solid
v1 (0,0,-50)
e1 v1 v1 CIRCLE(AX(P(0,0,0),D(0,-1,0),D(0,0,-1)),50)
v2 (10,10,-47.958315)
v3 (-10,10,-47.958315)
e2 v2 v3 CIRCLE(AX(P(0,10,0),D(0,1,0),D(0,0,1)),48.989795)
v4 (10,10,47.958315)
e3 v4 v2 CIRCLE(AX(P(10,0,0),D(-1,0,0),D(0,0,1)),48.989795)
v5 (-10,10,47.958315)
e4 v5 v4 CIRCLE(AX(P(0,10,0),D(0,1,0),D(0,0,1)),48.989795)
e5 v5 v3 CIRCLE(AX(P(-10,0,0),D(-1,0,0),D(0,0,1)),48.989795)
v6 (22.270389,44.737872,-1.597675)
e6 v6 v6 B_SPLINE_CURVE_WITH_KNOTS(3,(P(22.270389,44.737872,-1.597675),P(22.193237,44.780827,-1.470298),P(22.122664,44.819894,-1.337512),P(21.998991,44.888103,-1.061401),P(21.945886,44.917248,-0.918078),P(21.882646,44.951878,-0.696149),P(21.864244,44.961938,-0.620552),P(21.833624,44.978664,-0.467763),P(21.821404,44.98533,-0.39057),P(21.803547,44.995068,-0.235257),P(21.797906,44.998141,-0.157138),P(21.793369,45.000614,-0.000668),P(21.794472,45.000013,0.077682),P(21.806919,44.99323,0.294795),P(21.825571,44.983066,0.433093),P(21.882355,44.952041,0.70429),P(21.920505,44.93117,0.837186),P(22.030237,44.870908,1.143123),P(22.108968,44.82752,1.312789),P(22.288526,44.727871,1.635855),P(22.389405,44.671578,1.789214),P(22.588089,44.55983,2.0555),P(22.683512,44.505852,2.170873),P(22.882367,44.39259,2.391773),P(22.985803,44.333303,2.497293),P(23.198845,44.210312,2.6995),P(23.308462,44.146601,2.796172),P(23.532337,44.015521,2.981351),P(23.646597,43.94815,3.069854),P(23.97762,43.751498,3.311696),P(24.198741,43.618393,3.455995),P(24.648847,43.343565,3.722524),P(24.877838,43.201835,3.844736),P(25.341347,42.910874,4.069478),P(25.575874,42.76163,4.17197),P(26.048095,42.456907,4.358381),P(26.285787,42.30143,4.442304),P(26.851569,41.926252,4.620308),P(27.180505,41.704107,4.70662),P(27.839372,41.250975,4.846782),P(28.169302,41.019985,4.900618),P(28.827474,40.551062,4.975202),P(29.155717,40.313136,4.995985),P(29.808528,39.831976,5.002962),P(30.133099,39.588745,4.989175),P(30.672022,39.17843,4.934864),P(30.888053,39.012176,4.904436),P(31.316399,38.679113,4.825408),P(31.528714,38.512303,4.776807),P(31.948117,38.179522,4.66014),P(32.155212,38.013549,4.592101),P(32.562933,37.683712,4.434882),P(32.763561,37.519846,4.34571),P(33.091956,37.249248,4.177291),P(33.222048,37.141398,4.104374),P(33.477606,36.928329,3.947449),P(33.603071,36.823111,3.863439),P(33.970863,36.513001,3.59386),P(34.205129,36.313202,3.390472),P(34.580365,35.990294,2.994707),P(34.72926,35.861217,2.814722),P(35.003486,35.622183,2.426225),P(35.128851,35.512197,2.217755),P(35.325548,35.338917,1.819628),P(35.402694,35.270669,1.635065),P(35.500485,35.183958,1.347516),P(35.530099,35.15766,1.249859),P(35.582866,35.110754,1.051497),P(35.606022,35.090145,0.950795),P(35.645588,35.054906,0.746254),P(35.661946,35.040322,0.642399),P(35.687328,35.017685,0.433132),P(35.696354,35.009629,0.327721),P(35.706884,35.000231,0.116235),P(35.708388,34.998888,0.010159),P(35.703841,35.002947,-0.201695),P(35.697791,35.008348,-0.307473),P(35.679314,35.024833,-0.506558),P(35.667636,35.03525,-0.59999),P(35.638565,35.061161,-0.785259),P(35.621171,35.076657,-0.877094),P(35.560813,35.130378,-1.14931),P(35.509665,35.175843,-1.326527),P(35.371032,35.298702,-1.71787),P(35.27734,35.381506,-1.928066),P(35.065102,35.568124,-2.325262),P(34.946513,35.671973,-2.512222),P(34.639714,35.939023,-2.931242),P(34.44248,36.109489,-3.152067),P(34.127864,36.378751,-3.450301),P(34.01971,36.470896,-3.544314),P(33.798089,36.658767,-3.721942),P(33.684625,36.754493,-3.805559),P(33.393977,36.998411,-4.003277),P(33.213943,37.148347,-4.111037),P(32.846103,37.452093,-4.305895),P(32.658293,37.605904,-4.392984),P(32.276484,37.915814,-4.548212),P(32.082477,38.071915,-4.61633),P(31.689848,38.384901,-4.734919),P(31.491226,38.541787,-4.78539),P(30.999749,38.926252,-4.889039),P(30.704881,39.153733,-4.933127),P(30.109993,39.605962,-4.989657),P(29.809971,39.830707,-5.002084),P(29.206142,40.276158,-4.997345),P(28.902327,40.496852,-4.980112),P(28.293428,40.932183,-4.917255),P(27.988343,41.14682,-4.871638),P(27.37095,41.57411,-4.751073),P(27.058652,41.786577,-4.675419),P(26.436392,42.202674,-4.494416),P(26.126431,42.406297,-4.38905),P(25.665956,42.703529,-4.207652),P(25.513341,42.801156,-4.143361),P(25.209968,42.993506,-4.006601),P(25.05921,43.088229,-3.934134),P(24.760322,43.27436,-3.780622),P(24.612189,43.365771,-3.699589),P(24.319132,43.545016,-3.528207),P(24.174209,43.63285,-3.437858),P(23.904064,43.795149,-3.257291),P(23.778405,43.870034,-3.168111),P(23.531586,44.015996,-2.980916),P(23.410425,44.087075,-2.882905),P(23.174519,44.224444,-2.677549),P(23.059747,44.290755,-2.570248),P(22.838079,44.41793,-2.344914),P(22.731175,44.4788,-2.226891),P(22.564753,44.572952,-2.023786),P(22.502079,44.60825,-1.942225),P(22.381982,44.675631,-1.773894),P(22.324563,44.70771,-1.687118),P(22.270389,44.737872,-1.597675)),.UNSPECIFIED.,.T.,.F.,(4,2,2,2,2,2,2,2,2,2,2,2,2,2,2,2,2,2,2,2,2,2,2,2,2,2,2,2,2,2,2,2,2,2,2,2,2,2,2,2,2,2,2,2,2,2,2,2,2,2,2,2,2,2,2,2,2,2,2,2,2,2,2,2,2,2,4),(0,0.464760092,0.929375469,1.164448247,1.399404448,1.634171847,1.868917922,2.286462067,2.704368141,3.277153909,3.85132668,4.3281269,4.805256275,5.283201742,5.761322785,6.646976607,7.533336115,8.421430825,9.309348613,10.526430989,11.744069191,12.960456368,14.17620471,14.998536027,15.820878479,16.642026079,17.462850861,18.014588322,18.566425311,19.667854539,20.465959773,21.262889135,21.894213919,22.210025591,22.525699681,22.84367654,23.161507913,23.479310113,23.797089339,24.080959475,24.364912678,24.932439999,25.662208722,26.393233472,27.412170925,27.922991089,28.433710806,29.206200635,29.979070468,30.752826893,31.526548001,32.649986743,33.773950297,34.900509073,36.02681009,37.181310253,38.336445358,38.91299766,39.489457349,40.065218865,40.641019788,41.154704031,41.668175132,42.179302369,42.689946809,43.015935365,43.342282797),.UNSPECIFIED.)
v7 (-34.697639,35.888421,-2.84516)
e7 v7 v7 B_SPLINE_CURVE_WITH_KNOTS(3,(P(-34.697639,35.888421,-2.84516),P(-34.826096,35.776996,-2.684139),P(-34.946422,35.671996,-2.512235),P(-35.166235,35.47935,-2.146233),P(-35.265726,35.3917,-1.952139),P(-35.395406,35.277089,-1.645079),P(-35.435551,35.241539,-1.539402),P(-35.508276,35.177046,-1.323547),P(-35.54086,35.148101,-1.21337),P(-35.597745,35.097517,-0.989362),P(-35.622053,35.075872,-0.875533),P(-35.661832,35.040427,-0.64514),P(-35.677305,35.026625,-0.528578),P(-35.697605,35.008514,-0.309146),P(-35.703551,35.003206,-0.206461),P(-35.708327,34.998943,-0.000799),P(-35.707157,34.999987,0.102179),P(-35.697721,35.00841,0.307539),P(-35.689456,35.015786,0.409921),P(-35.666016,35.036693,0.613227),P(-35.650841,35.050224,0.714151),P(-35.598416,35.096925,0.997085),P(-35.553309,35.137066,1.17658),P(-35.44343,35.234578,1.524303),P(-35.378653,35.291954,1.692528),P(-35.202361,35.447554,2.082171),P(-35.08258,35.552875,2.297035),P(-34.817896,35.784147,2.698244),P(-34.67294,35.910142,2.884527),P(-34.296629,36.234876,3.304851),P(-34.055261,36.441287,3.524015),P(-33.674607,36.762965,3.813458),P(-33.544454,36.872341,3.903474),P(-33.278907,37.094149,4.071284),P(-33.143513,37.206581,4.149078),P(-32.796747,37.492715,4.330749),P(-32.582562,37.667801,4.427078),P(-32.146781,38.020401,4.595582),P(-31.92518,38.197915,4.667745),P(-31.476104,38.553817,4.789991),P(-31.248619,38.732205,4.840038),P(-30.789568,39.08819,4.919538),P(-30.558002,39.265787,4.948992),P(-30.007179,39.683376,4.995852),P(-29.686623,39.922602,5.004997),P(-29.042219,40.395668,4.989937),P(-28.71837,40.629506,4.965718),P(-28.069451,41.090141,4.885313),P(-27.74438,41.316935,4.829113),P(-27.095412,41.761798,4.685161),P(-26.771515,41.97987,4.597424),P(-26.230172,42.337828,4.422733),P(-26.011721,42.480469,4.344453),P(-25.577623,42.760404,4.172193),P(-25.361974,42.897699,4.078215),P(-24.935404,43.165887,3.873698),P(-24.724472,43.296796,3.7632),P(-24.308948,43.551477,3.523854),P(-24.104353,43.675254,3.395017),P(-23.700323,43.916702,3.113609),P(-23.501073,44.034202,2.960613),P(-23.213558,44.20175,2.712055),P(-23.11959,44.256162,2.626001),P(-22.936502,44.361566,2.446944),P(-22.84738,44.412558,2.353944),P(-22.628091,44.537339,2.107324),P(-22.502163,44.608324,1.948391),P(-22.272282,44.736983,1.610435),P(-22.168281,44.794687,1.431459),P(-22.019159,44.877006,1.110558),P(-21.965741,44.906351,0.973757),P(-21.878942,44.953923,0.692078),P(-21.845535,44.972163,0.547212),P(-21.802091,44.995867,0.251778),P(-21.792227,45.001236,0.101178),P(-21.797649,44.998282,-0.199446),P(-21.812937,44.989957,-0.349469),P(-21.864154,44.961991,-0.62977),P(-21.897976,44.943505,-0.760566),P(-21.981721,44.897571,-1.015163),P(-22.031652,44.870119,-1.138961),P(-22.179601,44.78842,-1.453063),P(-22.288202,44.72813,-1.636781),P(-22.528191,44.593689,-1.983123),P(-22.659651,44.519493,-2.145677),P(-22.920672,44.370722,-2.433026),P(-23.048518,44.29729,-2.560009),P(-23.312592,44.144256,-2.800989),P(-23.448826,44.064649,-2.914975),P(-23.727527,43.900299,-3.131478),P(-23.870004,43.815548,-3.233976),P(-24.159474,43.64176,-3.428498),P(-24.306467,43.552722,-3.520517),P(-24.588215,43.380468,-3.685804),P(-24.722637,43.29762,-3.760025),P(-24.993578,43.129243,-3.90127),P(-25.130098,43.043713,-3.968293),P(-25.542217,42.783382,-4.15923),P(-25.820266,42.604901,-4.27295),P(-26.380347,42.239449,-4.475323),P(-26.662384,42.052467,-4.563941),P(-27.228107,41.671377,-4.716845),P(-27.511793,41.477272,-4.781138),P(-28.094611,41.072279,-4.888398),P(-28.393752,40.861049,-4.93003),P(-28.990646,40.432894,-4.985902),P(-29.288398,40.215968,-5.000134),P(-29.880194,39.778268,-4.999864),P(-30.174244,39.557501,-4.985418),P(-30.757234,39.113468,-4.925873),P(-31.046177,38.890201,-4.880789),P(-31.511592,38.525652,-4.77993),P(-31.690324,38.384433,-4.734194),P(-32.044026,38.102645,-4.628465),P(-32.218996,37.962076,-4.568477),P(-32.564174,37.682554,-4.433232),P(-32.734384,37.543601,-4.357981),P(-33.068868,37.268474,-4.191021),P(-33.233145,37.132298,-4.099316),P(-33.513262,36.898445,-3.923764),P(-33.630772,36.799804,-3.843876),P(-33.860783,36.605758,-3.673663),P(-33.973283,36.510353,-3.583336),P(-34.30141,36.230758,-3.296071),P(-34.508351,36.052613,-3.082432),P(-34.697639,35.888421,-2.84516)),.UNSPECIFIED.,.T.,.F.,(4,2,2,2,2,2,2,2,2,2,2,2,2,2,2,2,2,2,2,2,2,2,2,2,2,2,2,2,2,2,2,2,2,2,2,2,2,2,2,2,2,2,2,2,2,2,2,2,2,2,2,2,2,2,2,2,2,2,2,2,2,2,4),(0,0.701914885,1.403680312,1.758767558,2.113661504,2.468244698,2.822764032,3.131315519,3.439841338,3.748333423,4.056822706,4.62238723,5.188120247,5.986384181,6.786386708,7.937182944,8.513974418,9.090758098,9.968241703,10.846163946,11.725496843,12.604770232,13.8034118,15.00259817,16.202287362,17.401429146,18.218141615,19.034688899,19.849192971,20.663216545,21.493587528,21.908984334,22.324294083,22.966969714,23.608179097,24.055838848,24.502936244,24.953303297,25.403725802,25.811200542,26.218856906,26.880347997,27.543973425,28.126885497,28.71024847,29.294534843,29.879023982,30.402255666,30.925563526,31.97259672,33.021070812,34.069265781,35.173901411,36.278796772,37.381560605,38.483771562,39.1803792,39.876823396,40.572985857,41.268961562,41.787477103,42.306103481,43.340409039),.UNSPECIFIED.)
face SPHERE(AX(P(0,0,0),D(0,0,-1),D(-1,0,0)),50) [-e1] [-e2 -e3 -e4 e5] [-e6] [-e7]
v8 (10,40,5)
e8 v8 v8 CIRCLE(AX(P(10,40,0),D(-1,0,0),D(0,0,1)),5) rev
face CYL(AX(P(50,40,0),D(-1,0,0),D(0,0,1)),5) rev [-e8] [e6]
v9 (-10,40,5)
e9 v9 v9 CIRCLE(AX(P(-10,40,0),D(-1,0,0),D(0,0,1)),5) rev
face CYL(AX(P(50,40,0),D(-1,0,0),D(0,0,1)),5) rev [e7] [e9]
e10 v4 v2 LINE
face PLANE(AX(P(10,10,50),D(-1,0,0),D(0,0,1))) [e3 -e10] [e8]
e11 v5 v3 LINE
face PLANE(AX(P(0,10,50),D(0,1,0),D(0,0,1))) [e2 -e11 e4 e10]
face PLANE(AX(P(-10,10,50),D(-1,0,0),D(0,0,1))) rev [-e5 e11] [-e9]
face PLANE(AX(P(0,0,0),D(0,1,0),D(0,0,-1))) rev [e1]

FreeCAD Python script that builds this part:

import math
import FreeCAD as App
import Part
import Sketcher
from FreeCAD import Vector


def add_polygon(sketch, points):
    """Adds a closed chain of lines whose ends are joined by coincident constraints."""
    first, n = sketch.GeometryCount, len(points)
    for a, b in zip(points, points[1:] + points[:1]):
        sketch.addGeometry(Part.LineSegment(App.Vector(*a, 0), App.Vector(*b, 0)), False)
    for i in range(n):
        sketch.addConstraint(Sketcher.Constraint("Coincident", first + i, 2, first + (i + 1) % n, 1))

doc = App.newDocument("Part")
body = doc.addObject("PartDesign::Body", "Body")

sketch1 = body.newObject("Sketcher::SketchObject", "Sketch")
sketch1.AttachmentSupport = (doc.getObject("XZ_Plane"), [""])
sketch1.MapMode = "FlatFace"
sketch1.addGeometry(Part.LineSegment(Vector(0, -50, 0), Vector(0, 50, 0)), False)
sketch1.addGeometry(Part.ArcOfCircle(Part.Circle(Vector(0, 0, 0), Vector(0, 0, 1), 50), math.radians(-90), math.radians(90)), False)
sketch1.addConstraint(Sketcher.Constraint("Coincident", 0, 1, 1, 1))
sketch1.addConstraint(Sketcher.Constraint("Coincident", 1, 2, 0, 2))
sketch1.addConstraint(Sketcher.Constraint("Vertical", 0))
sketch1.addConstraint(Sketcher.Constraint("Coincident", 1, 3, -1, 1))
sketch1.addConstraint(Sketcher.Constraint("PointOnObject", 0, 1, -2))
sketch1.addConstraint(Sketcher.Constraint("Radius", 1, 50.0))
revolution = body.newObject("PartDesign::Revolution", "Revolution")
revolution.Profile = sketch1
revolution.ReferenceAxis = (sketch1, ["V_Axis"])
revolution.Angle = 180

sketch2 = body.newObject("Sketcher::SketchObject", "Sketch001")
sketch2.AttachmentSupport = (doc.getObject("XY_Plane"), [""])
sketch2.MapMode = "FlatFace"
add_polygon(sketch2, [(0, 50), (0, 10), (10, 10), (10, 50)])
sketch2.addConstraint(Sketcher.Constraint("Vertical", 0))
sketch2.addConstraint(Sketcher.Constraint("Horizontal", 1))
sketch2.addConstraint(Sketcher.Constraint("Vertical", 2))
sketch2.addConstraint(Sketcher.Constraint("Horizontal", 3))
sketch2.addConstraint(Sketcher.Constraint("PointOnObject", 0, 2, -2))
sketch2.addConstraint(Sketcher.Constraint("DistanceX", 1, 1, 1, 2, 10.0))
sketch2.addConstraint(Sketcher.Constraint("DistanceY", 0, 2, 0, 1, 40.0))
sketch2.addConstraint(Sketcher.Constraint("DistanceY", -1, 1, 0, 2, 10.0))
pocket1 = body.newObject("PartDesign::Pocket", "Pocket")
pocket1.Profile = sketch2
pocket1.Length = 100
pocket1.Midplane = True
doc.recompute()

mirrored = body.newObject("PartDesign::Mirrored", "Mirrored")
mirrored.Originals = [pocket1]
mirrored.MirrorPlane = (doc.getObject("YZ_Plane"), [""])
body.Tip = mirrored

sketch3 = body.newObject("Sketcher::SketchObject", "Sketch002")
sketch3.AttachmentSupport = (doc.getObject("YZ_Plane"), [""])
sketch3.MapMode = "FlatFace"
sketch3.addGeometry(Part.Circle(Vector(40, 0, 0), Vector(0, 0, 1), 5), False)
sketch3.addConstraint(Sketcher.Constraint("PointOnObject", 0, 3, -1))
sketch3.addConstraint(Sketcher.Constraint("Diameter", 0, 10.0))
sketch3.addConstraint(Sketcher.Constraint("DistanceX", -1, 1, 0, 3, 40.0))
pocket2 = body.newObject("PartDesign::Pocket", "Pocket001")
pocket2.Profile = sketch3
pocket2.Type = "ThroughAll"
pocket2.Midplane = True

doc.recompute()
